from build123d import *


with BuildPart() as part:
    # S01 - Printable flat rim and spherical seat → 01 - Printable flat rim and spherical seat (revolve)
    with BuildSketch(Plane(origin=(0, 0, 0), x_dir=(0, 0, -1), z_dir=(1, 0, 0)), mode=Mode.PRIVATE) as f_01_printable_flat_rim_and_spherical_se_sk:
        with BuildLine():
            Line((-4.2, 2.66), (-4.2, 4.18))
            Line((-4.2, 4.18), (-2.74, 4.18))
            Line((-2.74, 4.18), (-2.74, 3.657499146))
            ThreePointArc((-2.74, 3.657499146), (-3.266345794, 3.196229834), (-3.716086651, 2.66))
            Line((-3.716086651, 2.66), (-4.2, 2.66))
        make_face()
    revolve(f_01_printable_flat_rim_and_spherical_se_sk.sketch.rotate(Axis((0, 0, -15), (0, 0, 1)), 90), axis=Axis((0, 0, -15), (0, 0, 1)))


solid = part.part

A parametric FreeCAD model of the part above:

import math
import FreeCAD as App
import Part
import Sketcher

V = App.Vector

doc = App.newDocument("Part")
body = doc.addObject("PartDesign::Body", "Body")

# Sketch on YZ plane
sketch1 = body.newObject("Sketcher::SketchObject", "Sketch")
sketch1.AttachmentSupport = (doc.getObject("YZ_Plane"), [""])
sketch1.MapMode = "FlatFace"
sketch1.addGeometry([
    Part.LineSegment(V(4.18, 4.2, 0), V(2.66, 4.2, 0)),  # 0
    Part.LineSegment(V(2.66, 4.2, 0), V(2.66, 3.72, 0)),  # 1
    Part.ArcOfCircle(Part.Circle(V(0, 0, 0), V(0, 0, 1), 4.57), math.radians(36.84), math.radians(54.4)),  # 2
    Part.LineSegment(V(3.66, 2.74, 0), V(4.18, 2.74, 0)),  # 3
    Part.LineSegment(V(4.18, 2.74, 0), V(4.18, 4.2, 0)),  # 4
], False)
sketch1.addConstraint([
    Sketcher.Constraint("Coincident", 0, 2, 1, 1),
    Sketcher.Constraint("Coincident", 1, 2, 2, 2),
    Sketcher.Constraint("Coincident", 2, 1, 3, 1),
    Sketcher.Constraint("Coincident", 3, 2, 4, 1),
    Sketcher.Constraint("Coincident", 4, 2, 0, 1),
    Sketcher.Constraint("Horizontal", 0),
    Sketcher.Constraint("Vertical", 1),
    Sketcher.Constraint("Horizontal", 3),
    Sketcher.Constraint("Vertical", 4),
    Sketcher.Constraint("Coincident", 2, 3, -1, 1),
    Sketcher.Constraint("Radius", 2, 4.57),
    Sketcher.Constraint("DistanceX", 0, 2, 0, 1, 1.52),
    Sketcher.Constraint("DistanceY", 4, 1, 4, 2, 1.46),
    Sketcher.Constraint("DistanceY", -1, 1, 0, 2, 4.2),
    Sketcher.Constraint("DistanceX", -1, 1, 0, 2, 2.66),
])
revolution = body.newObject("PartDesign::Revolution", "Revolution")
revolution.Profile = sketch1
revolution.ReferenceAxis = (sketch1, ["V_Axis"])
revolution.Angle = 360

doc.recompute()
